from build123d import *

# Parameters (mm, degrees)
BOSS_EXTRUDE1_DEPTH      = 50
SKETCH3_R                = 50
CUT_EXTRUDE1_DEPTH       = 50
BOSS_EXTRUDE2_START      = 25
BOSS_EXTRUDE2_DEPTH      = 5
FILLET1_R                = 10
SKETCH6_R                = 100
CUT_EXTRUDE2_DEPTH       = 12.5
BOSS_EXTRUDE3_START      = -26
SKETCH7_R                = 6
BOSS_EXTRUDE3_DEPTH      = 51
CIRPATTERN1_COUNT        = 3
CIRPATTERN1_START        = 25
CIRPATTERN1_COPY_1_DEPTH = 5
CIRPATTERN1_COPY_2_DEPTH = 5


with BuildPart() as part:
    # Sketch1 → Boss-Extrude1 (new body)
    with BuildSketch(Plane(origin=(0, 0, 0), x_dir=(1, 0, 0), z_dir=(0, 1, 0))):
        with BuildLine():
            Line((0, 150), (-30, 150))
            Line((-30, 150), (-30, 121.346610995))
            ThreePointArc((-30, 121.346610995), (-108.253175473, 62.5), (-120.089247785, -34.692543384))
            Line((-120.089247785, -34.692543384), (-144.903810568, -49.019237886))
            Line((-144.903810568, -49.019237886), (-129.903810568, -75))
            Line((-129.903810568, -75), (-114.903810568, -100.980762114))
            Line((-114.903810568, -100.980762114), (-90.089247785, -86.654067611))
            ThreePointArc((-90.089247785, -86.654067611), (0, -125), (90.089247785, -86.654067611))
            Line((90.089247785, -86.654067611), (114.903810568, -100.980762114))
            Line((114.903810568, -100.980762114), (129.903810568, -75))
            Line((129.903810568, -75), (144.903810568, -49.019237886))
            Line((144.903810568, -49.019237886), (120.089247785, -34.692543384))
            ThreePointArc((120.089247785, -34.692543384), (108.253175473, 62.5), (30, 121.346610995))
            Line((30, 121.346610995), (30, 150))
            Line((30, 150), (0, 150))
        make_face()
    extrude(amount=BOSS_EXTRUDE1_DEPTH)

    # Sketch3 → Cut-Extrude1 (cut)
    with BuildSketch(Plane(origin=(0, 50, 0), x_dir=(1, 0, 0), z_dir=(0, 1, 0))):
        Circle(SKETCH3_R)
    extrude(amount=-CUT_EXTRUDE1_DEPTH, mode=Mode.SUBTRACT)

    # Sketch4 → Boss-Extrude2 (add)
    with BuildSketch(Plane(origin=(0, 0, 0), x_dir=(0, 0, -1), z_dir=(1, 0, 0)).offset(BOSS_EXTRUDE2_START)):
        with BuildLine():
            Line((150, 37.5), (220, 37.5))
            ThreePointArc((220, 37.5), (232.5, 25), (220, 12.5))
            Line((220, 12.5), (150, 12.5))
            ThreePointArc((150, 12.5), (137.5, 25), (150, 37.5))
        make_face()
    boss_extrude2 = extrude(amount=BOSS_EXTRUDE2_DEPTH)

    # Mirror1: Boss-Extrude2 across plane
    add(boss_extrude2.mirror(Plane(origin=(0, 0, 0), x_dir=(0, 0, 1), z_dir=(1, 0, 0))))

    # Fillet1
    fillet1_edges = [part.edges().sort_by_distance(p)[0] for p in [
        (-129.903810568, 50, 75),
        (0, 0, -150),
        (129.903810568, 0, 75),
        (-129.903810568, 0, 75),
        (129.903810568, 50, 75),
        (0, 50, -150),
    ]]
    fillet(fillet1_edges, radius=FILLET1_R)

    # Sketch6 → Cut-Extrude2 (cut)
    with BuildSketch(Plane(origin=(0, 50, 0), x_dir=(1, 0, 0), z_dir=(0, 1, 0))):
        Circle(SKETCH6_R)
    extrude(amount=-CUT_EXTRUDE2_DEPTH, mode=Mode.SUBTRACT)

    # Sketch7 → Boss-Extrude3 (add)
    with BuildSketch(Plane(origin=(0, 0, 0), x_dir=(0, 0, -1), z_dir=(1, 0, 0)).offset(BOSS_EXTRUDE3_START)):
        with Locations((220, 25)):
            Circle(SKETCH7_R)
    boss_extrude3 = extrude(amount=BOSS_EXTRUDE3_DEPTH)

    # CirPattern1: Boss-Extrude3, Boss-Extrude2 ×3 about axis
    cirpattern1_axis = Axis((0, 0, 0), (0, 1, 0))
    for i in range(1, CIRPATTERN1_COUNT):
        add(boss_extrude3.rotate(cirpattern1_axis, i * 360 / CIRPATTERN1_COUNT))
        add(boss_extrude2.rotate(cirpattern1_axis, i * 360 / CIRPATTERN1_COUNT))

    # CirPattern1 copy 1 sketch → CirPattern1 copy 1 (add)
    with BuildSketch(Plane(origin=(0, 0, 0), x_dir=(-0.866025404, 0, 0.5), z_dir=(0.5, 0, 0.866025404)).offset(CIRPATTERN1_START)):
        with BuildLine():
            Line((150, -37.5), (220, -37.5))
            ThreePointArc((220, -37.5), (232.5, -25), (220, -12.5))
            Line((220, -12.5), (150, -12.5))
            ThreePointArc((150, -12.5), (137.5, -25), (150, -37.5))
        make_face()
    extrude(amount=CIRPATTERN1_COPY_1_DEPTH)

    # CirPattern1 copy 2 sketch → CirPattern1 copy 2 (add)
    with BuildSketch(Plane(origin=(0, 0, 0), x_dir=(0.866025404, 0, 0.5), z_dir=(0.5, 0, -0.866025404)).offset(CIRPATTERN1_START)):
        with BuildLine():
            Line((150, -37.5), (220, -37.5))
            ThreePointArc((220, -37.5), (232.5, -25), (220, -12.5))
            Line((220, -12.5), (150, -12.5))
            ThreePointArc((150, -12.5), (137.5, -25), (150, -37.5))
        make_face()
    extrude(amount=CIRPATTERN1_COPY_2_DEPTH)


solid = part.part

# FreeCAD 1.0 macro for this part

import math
import FreeCAD as App
import Part
import Sketcher
Q = App.Units.Quantity


def edges_at(feature, points):
    """Names of the edges that pass closest to the given points."""
    edges = feature.Shape.Edges
    near = lambda p: min(range(len(edges)), key=lambda i: edges[i].distToShape(Part.Vertex(*p))[0])
    return sorted({f"Edge{near(p) + 1}" for p in points})

doc = App.newDocument("Part")
params = doc.addObject("Spreadsheet::Sheet", "Params")
for row, (alias, value) in enumerate([
    ("sketch1_radius", "125 mm"),
    ("sketch1_width", "60 mm"),
    ("sketch1_length", "60 mm"),
    ("pad1_length", "50 mm"),
    ("sketch2_diameter", "100 mm"),
    ("pocket1_length", "50 mm"),
    ("sketch3_radius", "12.5 mm"),
    ("sketch3_height", "70 mm"),
    ("pad2_length", "5 mm"),
    ("fillet_radius", "10 mm"),
    ("sketch4_diameter", "200 mm"),
    ("pocket2_length", "12.5 mm"),
    ("sketch5_diameter", "12 mm"),
    ("pad3_length", "51 mm"),
    ("sketch6_radius", "12.5 mm"),
    ("sketch6_width", "70 mm"),
    ("pad4_length", "5 mm"),
    ("sketch7_radius", "12.5 mm"),
    ("sketch7_width", "70 mm"),
    ("pad5_length", "5 mm"),
], start=1):
    params.set(f"A{row}", alias)
    params.set(f"B{row}", "=" + value)
    params.setAlias(f"B{row}", alias)

body = doc.addObject("PartDesign::Body", "Body")

sketch1 = body.newObject("Sketcher::SketchObject", "Sketch")
sketch1.AttachmentSupport = (doc.getObject("XZ_Plane"), [""])
sketch1.MapMode = "FlatFace"
sketch1.addGeometry([
    Part.LineSegment(App.Vector(-30, -150, 0), App.Vector(-30, -121.346611, 0)),
    Part.ArcOfCircle(Part.Circle(App.Vector(0, 0, 0), App.Vector(0, 0, 1), 125), math.radians(163.88654), math.radians(256.11346)),
    Part.LineSegment(App.Vector(-120.089248, 34.692543, 0), App.Vector(-144.903811, 49.019238, 0)),
    Part.LineSegment(App.Vector(-144.903811, 49.019238, 0), App.Vector(-114.903811, 100.980762, 0)),
    Part.LineSegment(App.Vector(-114.903811, 100.980762, 0), App.Vector(-90.089248, 86.654068, 0)),
    Part.ArcOfCircle(Part.Circle(App.Vector(0, 0, 0), App.Vector(0, 0, 1), 125), math.radians(43.88654), math.radians(136.11346)),
    Part.LineSegment(App.Vector(90.089248, 86.654068, 0), App.Vector(114.903811, 100.980762, 0)),
    Part.LineSegment(App.Vector(114.903811, 100.980762, 0), App.Vector(144.903811, 49.019238, 0)),
    Part.LineSegment(App.Vector(144.903811, 49.019238, 0), App.Vector(120.089248, 34.692543, 0)),
    Part.ArcOfCircle(Part.Circle(App.Vector(0, 0, 0), App.Vector(0, 0, 1), 125), math.radians(-76.11346), math.radians(16.11346)),
    Part.LineSegment(App.Vector(30, -121.346611, 0), App.Vector(30, -150, 0)),
    Part.LineSegment(App.Vector(30, -150, 0), App.Vector(-30, -150, 0)),
], False)
sketch1.addConstraint([
    Sketcher.Constraint("Coincident", 0, 2, 1, 2),
    Sketcher.Constraint("Coincident", 1, 1, 2, 1),
    Sketcher.Constraint("Coincident", 2, 2, 3, 1),
    Sketcher.Constraint("Coincident", 3, 2, 4, 1),
    Sketcher.Constraint("Coincident", 4, 2, 5, 2),
    Sketcher.Constraint("Coincident", 5, 1, 6, 1),
    Sketcher.Constraint("Coincident", 6, 2, 7, 1),
    Sketcher.Constraint("Coincident", 7, 2, 8, 1),
    Sketcher.Constraint("Coincident", 8, 2, 9, 2),
    Sketcher.Constraint("Coincident", 9, 1, 10, 1),
    Sketcher.Constraint("Coincident", 10, 2, 11, 1),
    Sketcher.Constraint("Coincident", 11, 2, 0, 1),
    Sketcher.Constraint("Vertical", 0),
    Sketcher.Constraint("Vertical", 10),
    Sketcher.Constraint("Horizontal", 11),
    Sketcher.Constraint("Coincident", 1, 3, -1, 1),
    Sketcher.Constraint("Coincident", 5, 3, -1, 1),
    Sketcher.Constraint("Coincident", 9, 3, -1, 1),
    Sketcher.Constraint("Equal", 1, 5),
    Sketcher.Constraint("Equal", 5, 9),
    Sketcher.Constraint("Symmetric", 3, 2, 6, 2, -2),
    Sketcher.Constraint("Symmetric", 2, 2, 7, 2, -2),
    Sketcher.Constraint("Perpendicular", 2, 3),
    Sketcher.Constraint("Perpendicular", 3, 4),
    Sketcher.Constraint("Perpendicular", 6, 7),
    Sketcher.Constraint("Perpendicular", 7, 8),
    Sketcher.Constraint("Horizontal", 0, 2, 9, 1),
    Sketcher.Constraint("Equal", 2, 4),
    Sketcher.Constraint("Radius", 1, Q("125 mm")),
    Sketcher.Constraint("DistanceX", 11, 2, 11, 1, Q("60 mm")),
    Sketcher.Constraint("Angle", 2, Q("150 deg")),
    Sketcher.Constraint("Distance", 3, Q("60 mm")),
    Sketcher.Constraint("DistanceY", 10, 2, -1, 1, Q("150 mm")),
    Sketcher.Constraint("Distance", 2, Q("28.653389 mm")),
])
sketch1.setExpression("Constraints[28]", "Params.sketch1_radius")
sketch1.setExpression("Constraints[29]", "Params.sketch1_width")
sketch1.setExpression("Constraints[31]", "Params.sketch1_length")
pad1 = body.newObject("PartDesign::Pad", "Pad")
pad1.Profile = sketch1
pad1.setExpression("Length", "Params.pad1_length")
pad1.Reversed = True

sketch2 = body.newObject("Sketcher::SketchObject", "Sketch001")
sketch2.AttachmentSupport = (doc.getObject("XZ_Plane"), [""])
sketch2.MapMode = "FlatFace"
sketch2.AttachmentOffset = App.Placement(App.Vector(0, 0, -50), App.Rotation())
sketch2.addGeometry(Part.Circle(App.Vector(0, 0, 0), App.Vector(0, 0, 1), 50), False)
sketch2.addConstraint([
    Sketcher.Constraint("Coincident", 0, 3, -1, 1),
    Sketcher.Constraint("Diameter", 0, Q("100 mm")),
])
sketch2.setExpression("Constraints[1]", "Params.sketch2_diameter")
pocket1 = body.newObject("PartDesign::Pocket", "Pocket")
pocket1.Profile = sketch2
pocket1.setExpression("Length", "Params.pocket1_length")
pocket1.Reversed = True

sketch3 = body.newObject("Sketcher::SketchObject", "Sketch002")
sketch3.AttachmentSupport = (doc.getObject("YZ_Plane"), [""])
sketch3.MapMode = "FlatFace"
sketch3.AttachmentOffset = App.Placement(App.Vector(0, 0, 25), App.Rotation())
sketch3.addGeometry([
    Part.LineSegment(App.Vector(37.5, -220, 0), App.Vector(37.5, -150, 0)),
    Part.ArcOfCircle(Part.Circle(App.Vector(25, -150, 0), App.Vector(0, 0, 1), 12.5), math.radians(0), math.radians(180)),
    Part.LineSegment(App.Vector(12.5, -150, 0), App.Vector(12.5, -220, 0)),
    Part.ArcOfCircle(Part.Circle(App.Vector(25, -220, 0), App.Vector(0, 0, 1), 12.5), math.radians(180), math.radians(360)),
], False)
sketch3.addConstraint([
    Sketcher.Constraint("Tangent", 0, 2, 1, 1),
    Sketcher.Constraint("Tangent", 1, 2, 2, 1),
    Sketcher.Constraint("Tangent", 2, 2, 3, 1),
    Sketcher.Constraint("Tangent", 3, 2, 0, 1),
    Sketcher.Constraint("Vertical", 0),
    Sketcher.Constraint("Vertical", 2),
    Sketcher.Constraint("Radius", 1, Q("12.5 mm")),
    Sketcher.Constraint("DistanceY", 0, 1, 0, 2, Q("70 mm")),
    Sketcher.Constraint("DistanceX", -1, 1, 1, 3, Q("25 mm")),
    Sketcher.Constraint("DistanceY", 1, 3, -1, 1, Q("150 mm")),
])
sketch3.setExpression("Constraints[6]", "Params.sketch3_radius")
sketch3.setExpression("Constraints[7]", "Params.sketch3_height")
pad2 = body.newObject("PartDesign::Pad", "Pad001")
pad2.Profile = sketch3
pad2.setExpression("Length", "Params.pad2_length")
doc.recompute()

mirrored = body.newObject("PartDesign::Mirrored", "Mirrored")
mirrored.Originals = [pad2]
mirrored.MirrorPlane = (doc.getObject("YZ_Plane"), [""])
body.Tip = mirrored
doc.recompute()

fillet = body.newObject("PartDesign::Fillet", "Fillet")
fillet.Base = (mirrored, edges_at(mirrored, [
    (-129.904, 50, 75),
    (0, 0, -150),
    (129.904, 0, 75),
    (-129.904, 0, 75),
    (129.904, 50, 75),
    (0, 50, -150),
]))
fillet.setExpression("Radius", "Params.fillet_radius")

sketch4 = body.newObject("Sketcher::SketchObject", "Sketch003")
sketch4.AttachmentSupport = (doc.getObject("XZ_Plane"), [""])
sketch4.MapMode = "FlatFace"
sketch4.AttachmentOffset = App.Placement(App.Vector(0, 0, -50), App.Rotation())
sketch4.addGeometry(Part.Circle(App.Vector(0, 0, 0), App.Vector(0, 0, 1), 100), False)
sketch4.addConstraint([
    Sketcher.Constraint("Coincident", 0, 3, -1, 1),
    Sketcher.Constraint("Diameter", 0, Q("200 mm")),
])
sketch4.setExpression("Constraints[1]", "Params.sketch4_diameter")
pocket2 = body.newObject("PartDesign::Pocket", "Pocket001")
pocket2.Profile = sketch4
pocket2.setExpression("Length", "Params.pocket2_length")
pocket2.Reversed = True

sketch5 = body.newObject("Sketcher::SketchObject", "Sketch004")
sketch5.AttachmentSupport = (doc.getObject("YZ_Plane"), [""])
sketch5.MapMode = "FlatFace"
sketch5.AttachmentOffset = App.Placement(App.Vector(0, 0, -26), App.Rotation())
sketch5.addGeometry(Part.Circle(App.Vector(25, -220, 0), App.Vector(0, 0, 1), 6), False)
sketch5.addConstraint([
    Sketcher.Constraint("Diameter", 0, Q("12 mm")),
    Sketcher.Constraint("DistanceX", -1, 1, 0, 3, Q("25 mm")),
    Sketcher.Constraint("DistanceY", 0, 3, -1, 1, Q("220 mm")),
])
sketch5.setExpression("Constraints[0]", "Params.sketch5_diameter")
pad3 = body.newObject("PartDesign::Pad", "Pad002")
pad3.Profile = sketch5
pad3.setExpression("Length", "Params.pad3_length")
doc.recompute()

polarpattern = body.newObject("PartDesign::PolarPattern", "PolarPattern")
polarpattern.Originals = [pad3, pad2]
polarpattern.Axis = (doc.getObject("Y_Axis"), [""])
polarpattern.Angle = 360
polarpattern.Occurrences = 3
body.Tip = polarpattern

sketch6 = body.newObject("Sketcher::SketchObject", "Sketch005")
sketch6.Placement = App.Placement(App.Vector(12.5, 0, 21.650635), App.Rotation(App.Vector(-0.866025404, 0, 0.5), App.Vector(0, -1, 0), App.Vector(0.5, 0, 0.866025404), "ZXY"))
sketch6.addGeometry([
    Part.LineSegment(App.Vector(150, -37.5, 0), App.Vector(220, -37.5, 0)),
    Part.ArcOfCircle(Part.Circle(App.Vector(220, -25, 0), App.Vector(0, 0, 1), 12.5), math.radians(-90), math.radians(90)),
    Part.LineSegment(App.Vector(220, -12.5, 0), App.Vector(150, -12.5, 0)),
    Part.ArcOfCircle(Part.Circle(App.Vector(150, -25, 0), App.Vector(0, 0, 1), 12.5), math.radians(90), math.radians(270)),
], False)
sketch6.addConstraint([
    Sketcher.Constraint("Tangent", 0, 2, 1, 1),
    Sketcher.Constraint("Tangent", 1, 2, 2, 1),
    Sketcher.Constraint("Tangent", 2, 2, 3, 1),
    Sketcher.Constraint("Tangent", 3, 2, 0, 1),
    Sketcher.Constraint("Horizontal", 0),
    Sketcher.Constraint("Horizontal", 2),
    Sketcher.Constraint("Radius", 1, Q("12.5 mm")),
    Sketcher.Constraint("DistanceX", 0, 1, 0, 2, Q("70 mm")),
    Sketcher.Constraint("DistanceX", -1, 1, 1, 3, Q("220 mm")),
    Sketcher.Constraint("DistanceY", 1, 3, -1, 1, Q("25 mm")),
])
sketch6.setExpression("Constraints[6]", "Params.sketch6_radius")
sketch6.setExpression("Constraints[7]", "Params.sketch6_width")
pad4 = body.newObject("PartDesign::Pad", "Pad003")
pad4.Profile = sketch6
pad4.setExpression("Length", "Params.pad4_length")

sketch7 = body.newObject("Sketcher::SketchObject", "Sketch006")
sketch7.Placement = App.Placement(App.Vector(12.5, 0, -21.650635), App.Rotation(App.Vector(0.866025404, 0, 0.5), App.Vector(0, -1, 0), App.Vector(0.5, 0, -0.866025404), "ZXY"))
sketch7.addGeometry([
    Part.LineSegment(App.Vector(150, -37.5, 0), App.Vector(220, -37.5, 0)),
    Part.ArcOfCircle(Part.Circle(App.Vector(220, -25, 0), App.Vector(0, 0, 1), 12.5), math.radians(-90), math.radians(90)),
    Part.LineSegment(App.Vector(220, -12.5, 0), App.Vector(150, -12.5, 0)),
    Part.ArcOfCircle(Part.Circle(App.Vector(150, -25, 0), App.Vector(0, 0, 1), 12.5), math.radians(90), math.radians(270)),
], False)
sketch7.addConstraint([
    Sketcher.Constraint("Tangent", 0, 2, 1, 1),
    Sketcher.Constraint("Tangent", 1, 2, 2, 1),
    Sketcher.Constraint("Tangent", 2, 2, 3, 1),
    Sketcher.Constraint("Tangent", 3, 2, 0, 1),
    Sketcher.Constraint("Horizontal", 0),
    Sketcher.Constraint("Horizontal", 2),
    Sketcher.Constraint("Radius", 1, Q("12.5 mm")),
    Sketcher.Constraint("DistanceX", 0, 1, 0, 2, Q("70 mm")),
    Sketcher.Constraint("DistanceX", -1, 1, 1, 3, Q("220 mm")),
    Sketcher.Constraint("DistanceY", 1, 3, -1, 1, Q("25 mm")),
])
sketch7.setExpression("Constraints[6]", "Params.sketch7_radius")
sketch7.setExpression("Constraints[7]", "Params.sketch7_width")
pad5 = body.newObject("PartDesign::Pad", "Pad004")
pad5.Profile = sketch7
pad5.setExpression("Length", "Params.pad5_length")

doc.recompute()
